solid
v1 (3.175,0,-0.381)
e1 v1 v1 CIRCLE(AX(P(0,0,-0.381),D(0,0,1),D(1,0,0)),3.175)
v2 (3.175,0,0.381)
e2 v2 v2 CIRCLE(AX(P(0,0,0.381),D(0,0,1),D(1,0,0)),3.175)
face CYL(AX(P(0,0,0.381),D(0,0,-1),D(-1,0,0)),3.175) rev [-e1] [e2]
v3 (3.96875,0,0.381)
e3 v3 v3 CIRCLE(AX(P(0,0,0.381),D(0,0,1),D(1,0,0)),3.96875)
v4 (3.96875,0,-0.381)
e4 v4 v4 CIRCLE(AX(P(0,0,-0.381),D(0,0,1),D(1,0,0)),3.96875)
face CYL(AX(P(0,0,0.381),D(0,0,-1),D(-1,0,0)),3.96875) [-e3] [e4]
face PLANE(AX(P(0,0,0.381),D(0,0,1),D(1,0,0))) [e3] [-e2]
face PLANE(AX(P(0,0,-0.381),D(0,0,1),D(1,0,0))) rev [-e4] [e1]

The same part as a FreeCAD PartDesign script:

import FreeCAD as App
import Part
import Sketcher

V = App.Vector
Q = App.Units.Quantity

doc = App.newDocument("Part")
body = doc.addObject("PartDesign::Body", "Body")

sketch1 = body.newObject("Sketcher::SketchObject", "Sketch")
sketch1.AttachmentSupport = (doc.getObject("XY_Plane"), [""])
sketch1.MapMode = "FlatFace"
sketch1.addGeometry([
    Part.Circle(V(0, 0, 0), V(0, 0, 1), 3.96875),
    Part.Circle(V(0, 0, 0), V(0, 0, 1), 3.175),
], False)
sketch1.addConstraint([
    Sketcher.Constraint("Coincident", 0, 3, -1, 1),
    Sketcher.Constraint("Coincident", 1, 3, -1, 1),
    Sketcher.Constraint("Diameter", 1, Q("0.25 in")),
    Sketcher.Constraint("Diameter", 0, Q("0.3125 in")),
])
pad1 = body.newObject("PartDesign::Pad", "Pad")
pad1.Profile = sketch1
pad1.Length = Q("0.03 in")
pad1.Midplane = True

doc.recompute()
